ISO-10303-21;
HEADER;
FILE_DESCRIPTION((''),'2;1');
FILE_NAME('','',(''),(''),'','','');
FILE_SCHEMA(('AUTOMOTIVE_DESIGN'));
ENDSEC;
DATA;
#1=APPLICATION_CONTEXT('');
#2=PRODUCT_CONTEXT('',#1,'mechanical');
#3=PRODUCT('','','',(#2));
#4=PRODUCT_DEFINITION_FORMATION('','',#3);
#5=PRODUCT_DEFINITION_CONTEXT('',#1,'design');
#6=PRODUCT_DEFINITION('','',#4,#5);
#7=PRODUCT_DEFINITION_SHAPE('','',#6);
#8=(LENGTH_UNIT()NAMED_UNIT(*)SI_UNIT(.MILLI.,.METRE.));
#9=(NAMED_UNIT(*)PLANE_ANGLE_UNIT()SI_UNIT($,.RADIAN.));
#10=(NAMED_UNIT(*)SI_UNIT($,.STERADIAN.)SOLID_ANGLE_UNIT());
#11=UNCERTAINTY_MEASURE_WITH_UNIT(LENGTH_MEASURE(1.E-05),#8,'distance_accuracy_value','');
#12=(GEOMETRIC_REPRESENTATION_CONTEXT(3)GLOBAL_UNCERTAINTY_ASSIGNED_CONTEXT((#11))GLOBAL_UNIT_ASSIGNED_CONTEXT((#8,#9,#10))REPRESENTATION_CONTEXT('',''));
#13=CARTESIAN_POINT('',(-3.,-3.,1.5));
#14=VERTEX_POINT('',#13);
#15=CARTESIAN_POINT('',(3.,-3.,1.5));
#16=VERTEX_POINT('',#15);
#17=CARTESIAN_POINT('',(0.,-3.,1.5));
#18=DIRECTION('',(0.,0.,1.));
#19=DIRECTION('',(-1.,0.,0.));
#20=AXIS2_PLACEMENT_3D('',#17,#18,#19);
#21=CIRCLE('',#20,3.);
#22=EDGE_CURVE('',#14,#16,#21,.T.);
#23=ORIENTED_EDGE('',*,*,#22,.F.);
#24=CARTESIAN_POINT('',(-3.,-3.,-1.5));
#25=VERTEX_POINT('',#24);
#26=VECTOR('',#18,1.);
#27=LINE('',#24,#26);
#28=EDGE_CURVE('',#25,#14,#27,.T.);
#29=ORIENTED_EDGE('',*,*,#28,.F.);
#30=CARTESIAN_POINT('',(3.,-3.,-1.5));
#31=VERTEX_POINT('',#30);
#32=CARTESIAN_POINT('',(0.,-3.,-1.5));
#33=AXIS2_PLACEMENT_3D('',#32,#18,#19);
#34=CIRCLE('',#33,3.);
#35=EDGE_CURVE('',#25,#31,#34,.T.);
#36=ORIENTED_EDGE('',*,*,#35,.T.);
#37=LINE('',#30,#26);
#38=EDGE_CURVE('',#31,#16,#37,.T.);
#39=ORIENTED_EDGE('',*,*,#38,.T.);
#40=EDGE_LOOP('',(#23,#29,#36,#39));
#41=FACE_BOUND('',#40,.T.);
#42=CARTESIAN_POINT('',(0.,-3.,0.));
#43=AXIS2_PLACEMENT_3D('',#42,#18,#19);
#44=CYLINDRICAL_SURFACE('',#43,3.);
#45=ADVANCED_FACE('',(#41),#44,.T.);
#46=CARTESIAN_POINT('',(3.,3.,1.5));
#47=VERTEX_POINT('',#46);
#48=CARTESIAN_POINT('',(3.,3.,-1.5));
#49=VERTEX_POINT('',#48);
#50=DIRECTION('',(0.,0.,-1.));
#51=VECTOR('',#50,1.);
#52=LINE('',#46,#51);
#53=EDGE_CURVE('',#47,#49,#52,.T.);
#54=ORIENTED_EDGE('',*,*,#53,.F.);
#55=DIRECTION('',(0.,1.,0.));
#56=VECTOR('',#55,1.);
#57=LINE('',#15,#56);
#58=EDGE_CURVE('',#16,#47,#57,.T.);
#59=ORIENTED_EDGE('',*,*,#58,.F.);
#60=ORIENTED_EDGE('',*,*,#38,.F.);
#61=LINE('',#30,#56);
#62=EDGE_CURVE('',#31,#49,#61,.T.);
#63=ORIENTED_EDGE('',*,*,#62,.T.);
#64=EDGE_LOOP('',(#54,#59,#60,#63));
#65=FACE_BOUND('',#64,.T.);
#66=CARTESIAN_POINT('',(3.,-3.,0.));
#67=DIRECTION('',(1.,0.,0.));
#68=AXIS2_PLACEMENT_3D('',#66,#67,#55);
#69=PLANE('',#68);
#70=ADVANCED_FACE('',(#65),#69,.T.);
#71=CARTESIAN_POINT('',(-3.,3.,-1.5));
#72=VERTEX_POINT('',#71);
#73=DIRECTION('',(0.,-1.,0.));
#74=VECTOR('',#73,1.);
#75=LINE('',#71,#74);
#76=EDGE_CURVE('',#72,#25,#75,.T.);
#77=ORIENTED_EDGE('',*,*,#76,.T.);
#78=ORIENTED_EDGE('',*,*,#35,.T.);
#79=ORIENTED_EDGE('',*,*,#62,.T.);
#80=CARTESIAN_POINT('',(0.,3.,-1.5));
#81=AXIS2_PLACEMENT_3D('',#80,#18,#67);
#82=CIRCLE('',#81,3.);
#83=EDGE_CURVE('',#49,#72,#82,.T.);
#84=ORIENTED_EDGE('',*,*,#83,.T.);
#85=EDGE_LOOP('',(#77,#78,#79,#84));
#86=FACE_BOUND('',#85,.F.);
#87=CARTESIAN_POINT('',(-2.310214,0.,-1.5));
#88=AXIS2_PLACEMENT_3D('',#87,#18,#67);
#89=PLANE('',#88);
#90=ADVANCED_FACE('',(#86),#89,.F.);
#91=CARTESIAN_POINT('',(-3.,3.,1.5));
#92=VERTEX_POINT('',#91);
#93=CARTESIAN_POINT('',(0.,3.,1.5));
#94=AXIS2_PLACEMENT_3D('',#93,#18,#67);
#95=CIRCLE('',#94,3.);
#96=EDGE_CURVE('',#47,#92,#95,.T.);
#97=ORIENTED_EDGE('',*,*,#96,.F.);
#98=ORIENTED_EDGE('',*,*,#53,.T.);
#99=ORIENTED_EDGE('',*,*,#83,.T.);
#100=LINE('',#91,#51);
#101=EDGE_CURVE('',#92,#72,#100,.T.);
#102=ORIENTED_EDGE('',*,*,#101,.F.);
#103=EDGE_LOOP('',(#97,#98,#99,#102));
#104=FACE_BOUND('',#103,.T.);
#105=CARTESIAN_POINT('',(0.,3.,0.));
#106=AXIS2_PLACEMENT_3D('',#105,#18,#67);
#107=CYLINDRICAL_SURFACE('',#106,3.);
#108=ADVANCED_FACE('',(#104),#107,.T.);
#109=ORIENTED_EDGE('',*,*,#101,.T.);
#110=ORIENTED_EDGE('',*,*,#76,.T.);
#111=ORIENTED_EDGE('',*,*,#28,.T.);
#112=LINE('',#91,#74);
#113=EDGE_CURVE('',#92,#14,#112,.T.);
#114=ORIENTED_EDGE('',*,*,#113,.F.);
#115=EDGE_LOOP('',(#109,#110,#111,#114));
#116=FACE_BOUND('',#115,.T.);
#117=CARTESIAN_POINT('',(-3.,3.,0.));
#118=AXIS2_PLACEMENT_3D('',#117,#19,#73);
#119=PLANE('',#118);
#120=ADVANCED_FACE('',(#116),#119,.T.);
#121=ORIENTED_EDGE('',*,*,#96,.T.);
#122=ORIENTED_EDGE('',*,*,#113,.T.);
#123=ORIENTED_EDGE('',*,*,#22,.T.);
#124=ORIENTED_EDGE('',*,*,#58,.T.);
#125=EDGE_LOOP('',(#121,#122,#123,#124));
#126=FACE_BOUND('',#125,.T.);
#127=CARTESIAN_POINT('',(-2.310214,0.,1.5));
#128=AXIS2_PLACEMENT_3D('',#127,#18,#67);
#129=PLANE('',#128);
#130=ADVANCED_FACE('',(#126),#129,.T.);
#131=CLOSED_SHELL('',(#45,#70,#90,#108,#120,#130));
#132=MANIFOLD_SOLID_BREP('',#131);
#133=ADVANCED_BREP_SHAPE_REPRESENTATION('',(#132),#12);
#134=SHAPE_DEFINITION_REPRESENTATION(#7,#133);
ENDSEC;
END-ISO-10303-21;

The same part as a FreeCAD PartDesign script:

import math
import FreeCAD as App
import Part
import Sketcher
from FreeCAD import Vector
Q = App.Units.Quantity

doc = App.newDocument("Part")
params = doc.addObject("Spreadsheet::Sheet", "Params")
for row, (alias, value) in enumerate([
    ("sketch1_radius", "3 mm"),
    ("sketch1_height", "6 mm"),
    ("pad1_length", "3 mm"),
], start=1):
    params.set(f"A{row}", alias)
    params.set(f"B{row}", "=" + value)
    params.setAlias(f"B{row}", alias)

body = doc.addObject("PartDesign::Body", "Body")

sketch1 = doc.addObject("Sketcher::SketchObject", "Sketch")
body.addObject(sketch1)
sketch1.AttachmentSupport = (doc.XY_Plane, [""])
sketch1.MapMode = "FlatFace"
sketch1.addGeometry(Part.LineSegment(Vector(-3, 3, 0), Vector(-3, -3, 0)), False)
sketch1.addGeometry(Part.ArcOfCircle(Part.Circle(Vector(0, -3, 0), Vector(0, 0, 1), 3), math.radians(180), math.radians(360)), False)
sketch1.addGeometry(Part.LineSegment(Vector(3, -3, 0), Vector(3, 3, 0)), False)
sketch1.addGeometry(Part.ArcOfCircle(Part.Circle(Vector(0, 3, 0), Vector(0, 0, 1), 3), math.radians(0), math.radians(180)), False)
sketch1.addConstraint(Sketcher.Constraint("Tangent", 0, 2, 1, 1))
sketch1.addConstraint(Sketcher.Constraint("Tangent", 1, 2, 2, 1))
sketch1.addConstraint(Sketcher.Constraint("Tangent", 2, 2, 3, 1))
sketch1.addConstraint(Sketcher.Constraint("Tangent", 3, 2, 0, 1))
sketch1.addConstraint(Sketcher.Constraint("Vertical", 0))
sketch1.addConstraint(Sketcher.Constraint("Vertical", 2))
sketch1.addConstraint(Sketcher.Constraint("Symmetric", 1, 3, 3, 3, -1, 1))
sketch1.addConstraint(Sketcher.Constraint("Radius", 1, Q("3 mm")))
sketch1.addConstraint(Sketcher.Constraint("DistanceY", 0, 2, 0, 1, Q("6 mm")))
sketch1.setExpression("Constraints[7]", "Params.sketch1_radius")
sketch1.setExpression("Constraints[8]", "Params.sketch1_height")
pad1 = doc.addObject("PartDesign::Pad", "Pad")
body.addObject(pad1)
pad1.Profile = sketch1
pad1.setExpression("Length", "Params.pad1_length")
pad1.Midplane = True

doc.recompute()
